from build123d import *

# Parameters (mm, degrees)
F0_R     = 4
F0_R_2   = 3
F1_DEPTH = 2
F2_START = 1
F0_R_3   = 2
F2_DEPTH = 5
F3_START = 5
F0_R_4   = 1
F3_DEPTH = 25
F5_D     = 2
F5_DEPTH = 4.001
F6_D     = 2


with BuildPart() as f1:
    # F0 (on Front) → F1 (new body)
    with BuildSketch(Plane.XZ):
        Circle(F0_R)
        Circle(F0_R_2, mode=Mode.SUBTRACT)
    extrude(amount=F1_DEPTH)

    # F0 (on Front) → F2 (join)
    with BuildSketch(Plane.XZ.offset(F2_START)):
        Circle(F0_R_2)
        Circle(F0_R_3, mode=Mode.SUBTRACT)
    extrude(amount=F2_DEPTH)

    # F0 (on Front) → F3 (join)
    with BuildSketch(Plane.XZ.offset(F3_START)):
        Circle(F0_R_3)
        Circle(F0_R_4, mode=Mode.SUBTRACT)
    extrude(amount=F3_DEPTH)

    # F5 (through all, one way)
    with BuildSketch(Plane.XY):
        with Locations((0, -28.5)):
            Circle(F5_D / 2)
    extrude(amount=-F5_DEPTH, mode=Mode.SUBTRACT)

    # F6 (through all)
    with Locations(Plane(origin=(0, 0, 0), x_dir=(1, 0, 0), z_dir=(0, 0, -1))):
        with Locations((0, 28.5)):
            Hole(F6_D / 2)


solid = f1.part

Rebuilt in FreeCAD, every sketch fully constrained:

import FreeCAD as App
import Part
import Sketcher
from FreeCAD import Vector

doc = App.newDocument("Part")
body = doc.addObject("PartDesign::Body", "Body")

sketch1 = body.newObject("Sketcher::SketchObject", "Sketch")
sketch1.AttachmentSupport = (doc.getObject("XZ_Plane"), [""])
sketch1.MapMode = "FlatFace"
sketch1.addGeometry(Part.Circle(Vector(0, 0, 0), Vector(0, 0, 1), 4), False)
sketch1.addGeometry(Part.Circle(Vector(0, 0, 0), Vector(0, 0, 1), 3), False)
sketch1.addConstraint(Sketcher.Constraint("Coincident", 0, 3, -1, 1))
sketch1.addConstraint(Sketcher.Constraint("Coincident", 1, 3, -1, 1))
sketch1.addConstraint(Sketcher.Constraint("Diameter", 0, 8.0))
sketch1.addConstraint(Sketcher.Constraint("Diameter", 1, 6.0))
pad1 = body.newObject("PartDesign::Pad", "Pad")
pad1.Profile = sketch1
pad1.Length = 2

sketch2 = body.newObject("Sketcher::SketchObject", "Sketch001")
sketch2.AttachmentSupport = (doc.getObject("XZ_Plane"), [""])
sketch2.MapMode = "FlatFace"
sketch2.AttachmentOffset = App.Placement(Vector(0, 0, 1), App.Rotation())
sketch2.addGeometry(Part.Circle(Vector(0, 0, 0), Vector(0, 0, 1), 3), False)
sketch2.addGeometry(Part.Circle(Vector(0, 0, 0), Vector(0, 0, 1), 2), False)
sketch2.addConstraint(Sketcher.Constraint("Coincident", 0, 3, -1, 1))
sketch2.addConstraint(Sketcher.Constraint("Coincident", 1, 3, -1, 1))
sketch2.addConstraint(Sketcher.Constraint("Diameter", 0, 6.0))
sketch2.addConstraint(Sketcher.Constraint("Diameter", 1, 4.0))
pad2 = body.newObject("PartDesign::Pad", "Pad001")
pad2.Profile = sketch2
pad2.Length = 5

sketch3 = body.newObject("Sketcher::SketchObject", "Sketch002")
sketch3.AttachmentSupport = (doc.getObject("XZ_Plane"), [""])
sketch3.MapMode = "FlatFace"
sketch3.AttachmentOffset = App.Placement(Vector(0, 0, 5), App.Rotation())
sketch3.addGeometry(Part.Circle(Vector(0, 0, 0), Vector(0, 0, 1), 2), False)
sketch3.addGeometry(Part.Circle(Vector(0, 0, 0), Vector(0, 0, 1), 1), False)
sketch3.addConstraint(Sketcher.Constraint("Coincident", 0, 3, -1, 1))
sketch3.addConstraint(Sketcher.Constraint("Coincident", 1, 3, -1, 1))
sketch3.addConstraint(Sketcher.Constraint("Diameter", 0, 4.0))
sketch3.addConstraint(Sketcher.Constraint("Diameter", 1, 2.0))
pad3 = body.newObject("PartDesign::Pad", "Pad002")
pad3.Profile = sketch3
pad3.Length = 25

sketch4 = body.newObject("Sketcher::SketchObject", "Sketch003")
sketch4.AttachmentSupport = (doc.getObject("XY_Plane"), [""])
sketch4.MapMode = "FlatFace"
sketch4.addGeometry(Part.Circle(Vector(0, -28.5, 0), Vector(0, 0, 1), 1), False)
sketch4.addConstraint(Sketcher.Constraint("PointOnObject", 0, 3, -2))
sketch4.addConstraint(Sketcher.Constraint("Diameter", 0, 2.0))
sketch4.addConstraint(Sketcher.Constraint("DistanceY", 0, 3, -1, 1, 28.5))
pocket1 = body.newObject("PartDesign::Pocket", "Pocket")
pocket1.Profile = sketch4
pocket1.Type = "ThroughAll"

sketch5 = body.newObject("Sketcher::SketchObject", "Sketch004")
sketch5.AttachmentSupport = (doc.getObject("XY_Plane"), [""])
sketch5.MapMode = "FlatFace"
sketch5.addGeometry(Part.Circle(Vector(0, -28.5, 0), Vector(0, 0, 1), 1), False)
sketch5.addConstraint(Sketcher.Constraint("PointOnObject", 0, 3, -2))
sketch5.addConstraint(Sketcher.Constraint("Diameter", 0, 2.0))
sketch5.addConstraint(Sketcher.Constraint("DistanceY", 0, 3, -1, 1, 28.5))
doc.recompute()
hole = body.newObject("PartDesign::Hole", "Hole")
hole.Profile = sketch5
hole.ThreadType = "None"
hole.Diameter = 2
hole.DepthType = "ThroughAll"
hole.Reversed = True

doc.recompute()
